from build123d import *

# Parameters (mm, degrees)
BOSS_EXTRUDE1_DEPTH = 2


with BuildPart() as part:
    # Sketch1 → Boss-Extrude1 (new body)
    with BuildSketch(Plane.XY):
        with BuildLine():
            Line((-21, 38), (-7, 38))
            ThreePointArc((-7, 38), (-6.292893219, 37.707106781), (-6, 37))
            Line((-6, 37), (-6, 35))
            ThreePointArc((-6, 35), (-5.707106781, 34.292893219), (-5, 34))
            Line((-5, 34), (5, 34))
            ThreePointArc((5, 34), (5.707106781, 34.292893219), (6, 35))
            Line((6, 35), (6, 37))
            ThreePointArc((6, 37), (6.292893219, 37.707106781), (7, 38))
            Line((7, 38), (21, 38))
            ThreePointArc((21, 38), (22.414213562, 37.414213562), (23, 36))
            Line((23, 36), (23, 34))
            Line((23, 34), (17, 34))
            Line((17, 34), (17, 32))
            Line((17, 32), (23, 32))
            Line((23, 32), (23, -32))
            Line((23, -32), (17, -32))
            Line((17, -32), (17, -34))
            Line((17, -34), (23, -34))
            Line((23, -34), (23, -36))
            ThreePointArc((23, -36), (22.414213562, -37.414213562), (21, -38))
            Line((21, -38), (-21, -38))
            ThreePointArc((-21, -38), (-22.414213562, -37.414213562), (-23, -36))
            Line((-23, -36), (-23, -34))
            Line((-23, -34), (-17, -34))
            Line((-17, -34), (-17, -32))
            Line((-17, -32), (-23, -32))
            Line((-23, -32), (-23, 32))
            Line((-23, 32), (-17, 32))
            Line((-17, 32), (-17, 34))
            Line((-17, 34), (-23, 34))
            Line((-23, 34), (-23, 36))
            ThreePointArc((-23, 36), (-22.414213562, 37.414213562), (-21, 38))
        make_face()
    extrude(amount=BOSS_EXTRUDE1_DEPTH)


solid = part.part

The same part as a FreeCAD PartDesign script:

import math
import FreeCAD as App
import Part
import Sketcher
Q = App.Units.Quantity

doc = App.newDocument("Part")
body = doc.addObject("PartDesign::Body", "Body")

# Sketch on XY plane
sketch1 = doc.addObject("Sketcher::SketchObject", "Sketch")
body.addObject(sketch1)
sketch1.AttachmentSupport = (doc.XY_Plane, [""])
sketch1.MapMode = "FlatFace"
sketch1.addGeometry([
    Part.LineSegment(App.Vector(-7, 38, 0), App.Vector(-21, 38, 0)),  # 0
    Part.ArcOfCircle(Part.Circle(App.Vector(-21, 36, 0), App.Vector(0, 0, 1), 2), math.radians(90), math.radians(180)),  # 1
    Part.LineSegment(App.Vector(-23, 36, 0), App.Vector(-23, 34, 0)),  # 2
    Part.LineSegment(App.Vector(-23, 34, 0), App.Vector(-17, 34, 0)),  # 3
    Part.LineSegment(App.Vector(-17, 34, 0), App.Vector(-17, 32, 0)),  # 4
    Part.LineSegment(App.Vector(-17, 32, 0), App.Vector(-23, 32, 0)),  # 5
    Part.LineSegment(App.Vector(-23, 32, 0), App.Vector(-23, -32, 0)),  # 6
    Part.LineSegment(App.Vector(-23, -32, 0), App.Vector(-17, -32, 0)),  # 7
    Part.LineSegment(App.Vector(-17, -32, 0), App.Vector(-17, -34, 0)),  # 8
    Part.LineSegment(App.Vector(-17, -34, 0), App.Vector(-23, -34, 0)),  # 9
    Part.LineSegment(App.Vector(-23, -34, 0), App.Vector(-23, -36, 0)),  # 10
    Part.ArcOfCircle(Part.Circle(App.Vector(-21, -36, 0), App.Vector(0, 0, 1), 2), math.radians(-180), math.radians(-90)),  # 11
    Part.LineSegment(App.Vector(-21, -38, 0), App.Vector(21, -38, 0)),  # 12
    Part.ArcOfCircle(Part.Circle(App.Vector(21, -36, 0), App.Vector(0, 0, 1), 2), math.radians(-90), math.radians(0)),  # 13
    Part.LineSegment(App.Vector(23, -36, 0), App.Vector(23, -34, 0)),  # 14
    Part.LineSegment(App.Vector(23, -34, 0), App.Vector(17, -34, 0)),  # 15
    Part.LineSegment(App.Vector(17, -34, 0), App.Vector(17, -32, 0)),  # 16
    Part.LineSegment(App.Vector(17, -32, 0), App.Vector(23, -32, 0)),  # 17
    Part.LineSegment(App.Vector(23, -32, 0), App.Vector(23, 32, 0)),  # 18
    Part.LineSegment(App.Vector(23, 32, 0), App.Vector(17, 32, 0)),  # 19
    Part.LineSegment(App.Vector(17, 32, 0), App.Vector(17, 34, 0)),  # 20
    Part.LineSegment(App.Vector(17, 34, 0), App.Vector(23, 34, 0)),  # 21
    Part.LineSegment(App.Vector(23, 34, 0), App.Vector(23, 36, 0)),  # 22
    Part.ArcOfCircle(Part.Circle(App.Vector(21, 36, 0), App.Vector(0, 0, 1), 2), math.radians(0), math.radians(90)),  # 23
    Part.LineSegment(App.Vector(21, 38, 0), App.Vector(7, 38, 0)),  # 24
    Part.ArcOfCircle(Part.Circle(App.Vector(7, 37, 0), App.Vector(0, 0, 1), 1), math.radians(90), math.radians(180)),  # 25
    Part.LineSegment(App.Vector(6, 37, 0), App.Vector(6, 35, 0)),  # 26
    Part.ArcOfCircle(Part.Circle(App.Vector(5, 35, 0), App.Vector(0, 0, 1), 1), math.radians(-90), math.radians(0)),  # 27
    Part.LineSegment(App.Vector(5, 34, 0), App.Vector(-5, 34, 0)),  # 28
    Part.ArcOfCircle(Part.Circle(App.Vector(-5, 35, 0), App.Vector(0, 0, 1), 1), math.radians(-180), math.radians(-90)),  # 29
    Part.LineSegment(App.Vector(-6, 35, 0), App.Vector(-6, 37, 0)),  # 30
    Part.ArcOfCircle(Part.Circle(App.Vector(-7, 37, 0), App.Vector(0, 0, 1), 1), math.radians(0), math.radians(90)),  # 31
], False)
sketch1.addConstraint([
    Sketcher.Constraint("Tangent", 0, 2, 1, 1),
    Sketcher.Constraint("Tangent", 1, 2, 2, 1),
    Sketcher.Constraint("Coincident", 2, 2, 3, 1),
    Sketcher.Constraint("Coincident", 3, 2, 4, 1),
    Sketcher.Constraint("Coincident", 4, 2, 5, 1),
    Sketcher.Constraint("Coincident", 5, 2, 6, 1),
    Sketcher.Constraint("Coincident", 6, 2, 7, 1),
    Sketcher.Constraint("Coincident", 7, 2, 8, 1),
    Sketcher.Constraint("Coincident", 8, 2, 9, 1),
    Sketcher.Constraint("Coincident", 9, 2, 10, 1),
    Sketcher.Constraint("Tangent", 10, 2, 11, 1),
    Sketcher.Constraint("Tangent", 11, 2, 12, 1),
    Sketcher.Constraint("Tangent", 12, 2, 13, 1),
    Sketcher.Constraint("Tangent", 13, 2, 14, 1),
    Sketcher.Constraint("Coincident", 14, 2, 15, 1),
    Sketcher.Constraint("Coincident", 15, 2, 16, 1),
    Sketcher.Constraint("Coincident", 16, 2, 17, 1),
    Sketcher.Constraint("Coincident", 17, 2, 18, 1),
    Sketcher.Constraint("Coincident", 18, 2, 19, 1),
    Sketcher.Constraint("Coincident", 19, 2, 20, 1),
    Sketcher.Constraint("Coincident", 20, 2, 21, 1),
    Sketcher.Constraint("Coincident", 21, 2, 22, 1),
    Sketcher.Constraint("Tangent", 22, 2, 23, 1),
    Sketcher.Constraint("Tangent", 23, 2, 24, 1),
    Sketcher.Constraint("Tangent", 24, 2, 25, 1),
    Sketcher.Constraint("Tangent", 25, 2, 26, 1),
    Sketcher.Constraint("Tangent", 26, 2, 27, 2),
    Sketcher.Constraint("Tangent", 27, 1, 28, 1),
    Sketcher.Constraint("Tangent", 28, 2, 29, 2),
    Sketcher.Constraint("Tangent", 29, 1, 30, 1),
    Sketcher.Constraint("Tangent", 30, 2, 31, 1),
    Sketcher.Constraint("Tangent", 31, 2, 0, 1),
    Sketcher.Constraint("Horizontal", 0),
    Sketcher.Constraint("Vertical", 2),
    Sketcher.Constraint("Horizontal", 3),
    Sketcher.Constraint("Vertical", 4),
    Sketcher.Constraint("Horizontal", 5),
    Sketcher.Constraint("Vertical", 6),
    Sketcher.Constraint("Horizontal", 7),
    Sketcher.Constraint("Vertical", 8),
    Sketcher.Constraint("Horizontal", 9),
    Sketcher.Constraint("Vertical", 10),
    Sketcher.Constraint("Horizontal", 12),
    Sketcher.Constraint("Vertical", 14),
    Sketcher.Constraint("Horizontal", 15),
    Sketcher.Constraint("Vertical", 16),
    Sketcher.Constraint("Horizontal", 17),
    Sketcher.Constraint("Vertical", 18),
    Sketcher.Constraint("Horizontal", 19),
    Sketcher.Constraint("Vertical", 20),
    Sketcher.Constraint("Horizontal", 21),
    Sketcher.Constraint("Vertical", 22),
    Sketcher.Constraint("Horizontal", 24),
    Sketcher.Constraint("Vertical", 26),
    Sketcher.Constraint("Horizontal", 28),
    Sketcher.Constraint("Vertical", 30),
    Sketcher.Constraint("Equal", 1, 11),
    Sketcher.Constraint("Equal", 11, 13),
    Sketcher.Constraint("Equal", 13, 23),
    Sketcher.Constraint("Equal", 25, 27),
    Sketcher.Constraint("Equal", 27, 29),
    Sketcher.Constraint("Equal", 29, 31),
    Sketcher.Constraint("Symmetric", 1, 3, 13, 3, -1, 1),
    Sketcher.Constraint("Symmetric", 11, 3, 23, 3, -1, 1),
    Sketcher.Constraint("Symmetric", 3, 2, 15, 2, -1, 1),
    Sketcher.Constraint("Symmetric", 5, 2, 17, 2, -1, 1),
    Sketcher.Constraint("Symmetric", 7, 2, 19, 2, -1, 1),
    Sketcher.Constraint("Symmetric", 9, 2, 14, 2, -2),
    Sketcher.Constraint("Symmetric", 7, 2, 16, 2, -2),
    Sketcher.Constraint("Horizontal", 3, 2, 20, 2),
    Sketcher.Constraint("Horizontal", 21, 2, 27, 1),
    Sketcher.Constraint("Vertical", 2, 2, 5, 2),
    Sketcher.Constraint("Equal", 0, 24),
    Sketcher.Constraint("Equal", 2, 4),
    Sketcher.Constraint("Equal", 22, 26),
    Sketcher.Constraint("Radius", 1, Q("2 mm")),
    Sketcher.Constraint("DistanceX", 0, 2, 0, 1, Q("14 mm")),
    Sketcher.Constraint("DistanceX", 3, 1, 3, 2, Q("6 mm")),
    Sketcher.Constraint("DistanceX", 12, 1, 12, 2, Q("42 mm")),
    Sketcher.Constraint("DistanceY", 2, 2, 2, 1, Q("2 mm")),
    Sketcher.Constraint("DistanceY", 6, 2, 6, 1, Q("64 mm")),
])
pad1 = doc.addObject("PartDesign::Pad", "Pad")
body.addObject(pad1)
pad1.Profile = sketch1
pad1.Length = 2

doc.recompute()
